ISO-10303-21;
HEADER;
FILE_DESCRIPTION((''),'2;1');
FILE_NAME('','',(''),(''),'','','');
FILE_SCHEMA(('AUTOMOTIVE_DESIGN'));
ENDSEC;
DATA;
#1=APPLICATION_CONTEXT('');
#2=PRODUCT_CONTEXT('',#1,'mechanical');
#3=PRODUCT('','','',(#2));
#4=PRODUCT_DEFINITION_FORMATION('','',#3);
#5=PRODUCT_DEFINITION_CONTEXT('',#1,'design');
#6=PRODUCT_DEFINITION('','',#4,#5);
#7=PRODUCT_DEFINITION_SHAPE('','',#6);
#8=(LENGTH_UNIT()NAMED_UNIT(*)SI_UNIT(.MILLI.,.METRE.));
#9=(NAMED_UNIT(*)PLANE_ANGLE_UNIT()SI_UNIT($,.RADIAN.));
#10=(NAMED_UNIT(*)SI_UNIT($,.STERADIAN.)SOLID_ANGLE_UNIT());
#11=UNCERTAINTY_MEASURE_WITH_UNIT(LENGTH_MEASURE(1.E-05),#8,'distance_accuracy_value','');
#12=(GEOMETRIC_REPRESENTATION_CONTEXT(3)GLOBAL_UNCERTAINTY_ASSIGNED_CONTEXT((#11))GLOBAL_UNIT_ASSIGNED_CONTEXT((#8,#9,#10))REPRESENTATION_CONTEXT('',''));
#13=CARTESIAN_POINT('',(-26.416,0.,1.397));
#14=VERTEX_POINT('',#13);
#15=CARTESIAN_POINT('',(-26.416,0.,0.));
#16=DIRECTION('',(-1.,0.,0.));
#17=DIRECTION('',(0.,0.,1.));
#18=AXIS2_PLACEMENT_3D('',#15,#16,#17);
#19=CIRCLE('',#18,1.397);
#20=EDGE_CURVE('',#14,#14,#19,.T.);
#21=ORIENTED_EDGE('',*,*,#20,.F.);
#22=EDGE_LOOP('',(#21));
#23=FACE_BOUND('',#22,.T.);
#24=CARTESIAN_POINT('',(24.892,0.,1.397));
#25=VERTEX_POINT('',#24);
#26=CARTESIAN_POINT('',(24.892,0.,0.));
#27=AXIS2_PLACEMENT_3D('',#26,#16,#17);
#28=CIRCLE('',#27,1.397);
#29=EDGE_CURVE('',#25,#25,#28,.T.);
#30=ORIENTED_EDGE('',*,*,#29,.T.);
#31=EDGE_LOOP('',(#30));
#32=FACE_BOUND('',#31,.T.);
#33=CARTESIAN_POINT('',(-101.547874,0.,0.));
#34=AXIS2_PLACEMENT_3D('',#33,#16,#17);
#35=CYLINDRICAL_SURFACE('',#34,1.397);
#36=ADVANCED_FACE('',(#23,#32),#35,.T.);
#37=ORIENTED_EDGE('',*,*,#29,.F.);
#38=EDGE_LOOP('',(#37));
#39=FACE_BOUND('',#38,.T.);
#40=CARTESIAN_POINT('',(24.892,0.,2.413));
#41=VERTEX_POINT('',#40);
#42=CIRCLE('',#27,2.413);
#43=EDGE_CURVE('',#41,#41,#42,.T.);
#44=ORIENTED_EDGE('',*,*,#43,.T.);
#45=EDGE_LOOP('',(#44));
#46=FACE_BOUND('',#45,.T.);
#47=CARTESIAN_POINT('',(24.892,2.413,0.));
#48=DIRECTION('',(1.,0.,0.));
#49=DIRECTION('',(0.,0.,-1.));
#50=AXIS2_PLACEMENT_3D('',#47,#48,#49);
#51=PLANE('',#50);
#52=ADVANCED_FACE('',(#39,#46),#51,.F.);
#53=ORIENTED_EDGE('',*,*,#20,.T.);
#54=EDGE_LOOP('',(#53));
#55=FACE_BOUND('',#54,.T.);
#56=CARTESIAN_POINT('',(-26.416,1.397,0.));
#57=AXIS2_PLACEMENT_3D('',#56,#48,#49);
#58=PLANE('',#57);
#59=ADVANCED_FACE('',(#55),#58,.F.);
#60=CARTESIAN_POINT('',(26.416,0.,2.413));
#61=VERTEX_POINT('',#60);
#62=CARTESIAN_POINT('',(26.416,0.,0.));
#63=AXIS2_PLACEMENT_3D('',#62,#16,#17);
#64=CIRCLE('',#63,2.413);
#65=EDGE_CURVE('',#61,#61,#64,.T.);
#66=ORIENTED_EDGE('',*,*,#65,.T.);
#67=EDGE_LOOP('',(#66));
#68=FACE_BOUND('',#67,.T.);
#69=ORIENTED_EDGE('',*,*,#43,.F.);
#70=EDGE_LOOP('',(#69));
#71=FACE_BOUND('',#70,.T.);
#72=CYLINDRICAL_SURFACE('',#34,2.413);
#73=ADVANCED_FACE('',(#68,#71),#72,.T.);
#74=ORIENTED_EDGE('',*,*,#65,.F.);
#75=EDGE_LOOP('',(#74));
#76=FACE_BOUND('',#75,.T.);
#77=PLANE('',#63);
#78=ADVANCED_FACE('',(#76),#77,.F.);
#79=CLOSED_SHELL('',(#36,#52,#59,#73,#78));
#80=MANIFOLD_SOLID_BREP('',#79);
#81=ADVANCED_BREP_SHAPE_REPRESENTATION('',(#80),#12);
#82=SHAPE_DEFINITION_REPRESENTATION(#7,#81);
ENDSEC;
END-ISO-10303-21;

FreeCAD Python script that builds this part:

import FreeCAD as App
import Part
import Sketcher

V = App.Vector
Q = App.Units.Quantity


def add_polygon(sketch, points):
    """Adds a closed chain of lines whose ends are joined by coincident constraints."""
    first, n = sketch.GeometryCount, len(points)
    for a, b in zip(points, points[1:] + points[:1]):
        sketch.addGeometry(Part.LineSegment(App.Vector(*a, 0), App.Vector(*b, 0)), False)
    for i in range(n):
        sketch.addConstraint(Sketcher.Constraint("Coincident", first + i, 2, first + (i + 1) % n, 1))

doc = App.newDocument("Part")
body = doc.addObject("PartDesign::Body", "Body")

sketch1 = body.newObject("Sketcher::SketchObject", "Sketch")
sketch1.AttachmentSupport = (doc.getObject("XY_Plane"), [""])
sketch1.MapMode = "FlatFace"
add_polygon(sketch1, [(-26.4, 0), (26.4, 0), (26.4, 2.4), (24.9, 2.4), (24.9, 1.4), (-26.4, 1.4)])
sketch1.addConstraint([
    Sketcher.Constraint("Horizontal", 0),
    Sketcher.Constraint("Vertical", 1),
    Sketcher.Constraint("Horizontal", 2),
    Sketcher.Constraint("Vertical", 3),
    Sketcher.Constraint("Horizontal", 4),
    Sketcher.Constraint("Vertical", 5),
    Sketcher.Constraint("Symmetric", 0, 2, 5, 2, -1, 1),
    Sketcher.Constraint("DistanceX", 0, 1, 0, 2, Q("2.08 in")),
    Sketcher.Constraint("DistanceX", 2, 2, 2, 1, Q("0.06 in")),
    Sketcher.Constraint("DistanceY", 3, 2, 3, 1, Q("0.04 in")),
    Sketcher.Constraint("DistanceY", 1, 1, 1, 2, Q("0.095 in")),
])
revolution = body.newObject("PartDesign::Revolution", "Revolution")
revolution.Profile = sketch1
revolution.ReferenceAxis = (sketch1, ["H_Axis"])
revolution.Angle = 360

doc.recompute()
